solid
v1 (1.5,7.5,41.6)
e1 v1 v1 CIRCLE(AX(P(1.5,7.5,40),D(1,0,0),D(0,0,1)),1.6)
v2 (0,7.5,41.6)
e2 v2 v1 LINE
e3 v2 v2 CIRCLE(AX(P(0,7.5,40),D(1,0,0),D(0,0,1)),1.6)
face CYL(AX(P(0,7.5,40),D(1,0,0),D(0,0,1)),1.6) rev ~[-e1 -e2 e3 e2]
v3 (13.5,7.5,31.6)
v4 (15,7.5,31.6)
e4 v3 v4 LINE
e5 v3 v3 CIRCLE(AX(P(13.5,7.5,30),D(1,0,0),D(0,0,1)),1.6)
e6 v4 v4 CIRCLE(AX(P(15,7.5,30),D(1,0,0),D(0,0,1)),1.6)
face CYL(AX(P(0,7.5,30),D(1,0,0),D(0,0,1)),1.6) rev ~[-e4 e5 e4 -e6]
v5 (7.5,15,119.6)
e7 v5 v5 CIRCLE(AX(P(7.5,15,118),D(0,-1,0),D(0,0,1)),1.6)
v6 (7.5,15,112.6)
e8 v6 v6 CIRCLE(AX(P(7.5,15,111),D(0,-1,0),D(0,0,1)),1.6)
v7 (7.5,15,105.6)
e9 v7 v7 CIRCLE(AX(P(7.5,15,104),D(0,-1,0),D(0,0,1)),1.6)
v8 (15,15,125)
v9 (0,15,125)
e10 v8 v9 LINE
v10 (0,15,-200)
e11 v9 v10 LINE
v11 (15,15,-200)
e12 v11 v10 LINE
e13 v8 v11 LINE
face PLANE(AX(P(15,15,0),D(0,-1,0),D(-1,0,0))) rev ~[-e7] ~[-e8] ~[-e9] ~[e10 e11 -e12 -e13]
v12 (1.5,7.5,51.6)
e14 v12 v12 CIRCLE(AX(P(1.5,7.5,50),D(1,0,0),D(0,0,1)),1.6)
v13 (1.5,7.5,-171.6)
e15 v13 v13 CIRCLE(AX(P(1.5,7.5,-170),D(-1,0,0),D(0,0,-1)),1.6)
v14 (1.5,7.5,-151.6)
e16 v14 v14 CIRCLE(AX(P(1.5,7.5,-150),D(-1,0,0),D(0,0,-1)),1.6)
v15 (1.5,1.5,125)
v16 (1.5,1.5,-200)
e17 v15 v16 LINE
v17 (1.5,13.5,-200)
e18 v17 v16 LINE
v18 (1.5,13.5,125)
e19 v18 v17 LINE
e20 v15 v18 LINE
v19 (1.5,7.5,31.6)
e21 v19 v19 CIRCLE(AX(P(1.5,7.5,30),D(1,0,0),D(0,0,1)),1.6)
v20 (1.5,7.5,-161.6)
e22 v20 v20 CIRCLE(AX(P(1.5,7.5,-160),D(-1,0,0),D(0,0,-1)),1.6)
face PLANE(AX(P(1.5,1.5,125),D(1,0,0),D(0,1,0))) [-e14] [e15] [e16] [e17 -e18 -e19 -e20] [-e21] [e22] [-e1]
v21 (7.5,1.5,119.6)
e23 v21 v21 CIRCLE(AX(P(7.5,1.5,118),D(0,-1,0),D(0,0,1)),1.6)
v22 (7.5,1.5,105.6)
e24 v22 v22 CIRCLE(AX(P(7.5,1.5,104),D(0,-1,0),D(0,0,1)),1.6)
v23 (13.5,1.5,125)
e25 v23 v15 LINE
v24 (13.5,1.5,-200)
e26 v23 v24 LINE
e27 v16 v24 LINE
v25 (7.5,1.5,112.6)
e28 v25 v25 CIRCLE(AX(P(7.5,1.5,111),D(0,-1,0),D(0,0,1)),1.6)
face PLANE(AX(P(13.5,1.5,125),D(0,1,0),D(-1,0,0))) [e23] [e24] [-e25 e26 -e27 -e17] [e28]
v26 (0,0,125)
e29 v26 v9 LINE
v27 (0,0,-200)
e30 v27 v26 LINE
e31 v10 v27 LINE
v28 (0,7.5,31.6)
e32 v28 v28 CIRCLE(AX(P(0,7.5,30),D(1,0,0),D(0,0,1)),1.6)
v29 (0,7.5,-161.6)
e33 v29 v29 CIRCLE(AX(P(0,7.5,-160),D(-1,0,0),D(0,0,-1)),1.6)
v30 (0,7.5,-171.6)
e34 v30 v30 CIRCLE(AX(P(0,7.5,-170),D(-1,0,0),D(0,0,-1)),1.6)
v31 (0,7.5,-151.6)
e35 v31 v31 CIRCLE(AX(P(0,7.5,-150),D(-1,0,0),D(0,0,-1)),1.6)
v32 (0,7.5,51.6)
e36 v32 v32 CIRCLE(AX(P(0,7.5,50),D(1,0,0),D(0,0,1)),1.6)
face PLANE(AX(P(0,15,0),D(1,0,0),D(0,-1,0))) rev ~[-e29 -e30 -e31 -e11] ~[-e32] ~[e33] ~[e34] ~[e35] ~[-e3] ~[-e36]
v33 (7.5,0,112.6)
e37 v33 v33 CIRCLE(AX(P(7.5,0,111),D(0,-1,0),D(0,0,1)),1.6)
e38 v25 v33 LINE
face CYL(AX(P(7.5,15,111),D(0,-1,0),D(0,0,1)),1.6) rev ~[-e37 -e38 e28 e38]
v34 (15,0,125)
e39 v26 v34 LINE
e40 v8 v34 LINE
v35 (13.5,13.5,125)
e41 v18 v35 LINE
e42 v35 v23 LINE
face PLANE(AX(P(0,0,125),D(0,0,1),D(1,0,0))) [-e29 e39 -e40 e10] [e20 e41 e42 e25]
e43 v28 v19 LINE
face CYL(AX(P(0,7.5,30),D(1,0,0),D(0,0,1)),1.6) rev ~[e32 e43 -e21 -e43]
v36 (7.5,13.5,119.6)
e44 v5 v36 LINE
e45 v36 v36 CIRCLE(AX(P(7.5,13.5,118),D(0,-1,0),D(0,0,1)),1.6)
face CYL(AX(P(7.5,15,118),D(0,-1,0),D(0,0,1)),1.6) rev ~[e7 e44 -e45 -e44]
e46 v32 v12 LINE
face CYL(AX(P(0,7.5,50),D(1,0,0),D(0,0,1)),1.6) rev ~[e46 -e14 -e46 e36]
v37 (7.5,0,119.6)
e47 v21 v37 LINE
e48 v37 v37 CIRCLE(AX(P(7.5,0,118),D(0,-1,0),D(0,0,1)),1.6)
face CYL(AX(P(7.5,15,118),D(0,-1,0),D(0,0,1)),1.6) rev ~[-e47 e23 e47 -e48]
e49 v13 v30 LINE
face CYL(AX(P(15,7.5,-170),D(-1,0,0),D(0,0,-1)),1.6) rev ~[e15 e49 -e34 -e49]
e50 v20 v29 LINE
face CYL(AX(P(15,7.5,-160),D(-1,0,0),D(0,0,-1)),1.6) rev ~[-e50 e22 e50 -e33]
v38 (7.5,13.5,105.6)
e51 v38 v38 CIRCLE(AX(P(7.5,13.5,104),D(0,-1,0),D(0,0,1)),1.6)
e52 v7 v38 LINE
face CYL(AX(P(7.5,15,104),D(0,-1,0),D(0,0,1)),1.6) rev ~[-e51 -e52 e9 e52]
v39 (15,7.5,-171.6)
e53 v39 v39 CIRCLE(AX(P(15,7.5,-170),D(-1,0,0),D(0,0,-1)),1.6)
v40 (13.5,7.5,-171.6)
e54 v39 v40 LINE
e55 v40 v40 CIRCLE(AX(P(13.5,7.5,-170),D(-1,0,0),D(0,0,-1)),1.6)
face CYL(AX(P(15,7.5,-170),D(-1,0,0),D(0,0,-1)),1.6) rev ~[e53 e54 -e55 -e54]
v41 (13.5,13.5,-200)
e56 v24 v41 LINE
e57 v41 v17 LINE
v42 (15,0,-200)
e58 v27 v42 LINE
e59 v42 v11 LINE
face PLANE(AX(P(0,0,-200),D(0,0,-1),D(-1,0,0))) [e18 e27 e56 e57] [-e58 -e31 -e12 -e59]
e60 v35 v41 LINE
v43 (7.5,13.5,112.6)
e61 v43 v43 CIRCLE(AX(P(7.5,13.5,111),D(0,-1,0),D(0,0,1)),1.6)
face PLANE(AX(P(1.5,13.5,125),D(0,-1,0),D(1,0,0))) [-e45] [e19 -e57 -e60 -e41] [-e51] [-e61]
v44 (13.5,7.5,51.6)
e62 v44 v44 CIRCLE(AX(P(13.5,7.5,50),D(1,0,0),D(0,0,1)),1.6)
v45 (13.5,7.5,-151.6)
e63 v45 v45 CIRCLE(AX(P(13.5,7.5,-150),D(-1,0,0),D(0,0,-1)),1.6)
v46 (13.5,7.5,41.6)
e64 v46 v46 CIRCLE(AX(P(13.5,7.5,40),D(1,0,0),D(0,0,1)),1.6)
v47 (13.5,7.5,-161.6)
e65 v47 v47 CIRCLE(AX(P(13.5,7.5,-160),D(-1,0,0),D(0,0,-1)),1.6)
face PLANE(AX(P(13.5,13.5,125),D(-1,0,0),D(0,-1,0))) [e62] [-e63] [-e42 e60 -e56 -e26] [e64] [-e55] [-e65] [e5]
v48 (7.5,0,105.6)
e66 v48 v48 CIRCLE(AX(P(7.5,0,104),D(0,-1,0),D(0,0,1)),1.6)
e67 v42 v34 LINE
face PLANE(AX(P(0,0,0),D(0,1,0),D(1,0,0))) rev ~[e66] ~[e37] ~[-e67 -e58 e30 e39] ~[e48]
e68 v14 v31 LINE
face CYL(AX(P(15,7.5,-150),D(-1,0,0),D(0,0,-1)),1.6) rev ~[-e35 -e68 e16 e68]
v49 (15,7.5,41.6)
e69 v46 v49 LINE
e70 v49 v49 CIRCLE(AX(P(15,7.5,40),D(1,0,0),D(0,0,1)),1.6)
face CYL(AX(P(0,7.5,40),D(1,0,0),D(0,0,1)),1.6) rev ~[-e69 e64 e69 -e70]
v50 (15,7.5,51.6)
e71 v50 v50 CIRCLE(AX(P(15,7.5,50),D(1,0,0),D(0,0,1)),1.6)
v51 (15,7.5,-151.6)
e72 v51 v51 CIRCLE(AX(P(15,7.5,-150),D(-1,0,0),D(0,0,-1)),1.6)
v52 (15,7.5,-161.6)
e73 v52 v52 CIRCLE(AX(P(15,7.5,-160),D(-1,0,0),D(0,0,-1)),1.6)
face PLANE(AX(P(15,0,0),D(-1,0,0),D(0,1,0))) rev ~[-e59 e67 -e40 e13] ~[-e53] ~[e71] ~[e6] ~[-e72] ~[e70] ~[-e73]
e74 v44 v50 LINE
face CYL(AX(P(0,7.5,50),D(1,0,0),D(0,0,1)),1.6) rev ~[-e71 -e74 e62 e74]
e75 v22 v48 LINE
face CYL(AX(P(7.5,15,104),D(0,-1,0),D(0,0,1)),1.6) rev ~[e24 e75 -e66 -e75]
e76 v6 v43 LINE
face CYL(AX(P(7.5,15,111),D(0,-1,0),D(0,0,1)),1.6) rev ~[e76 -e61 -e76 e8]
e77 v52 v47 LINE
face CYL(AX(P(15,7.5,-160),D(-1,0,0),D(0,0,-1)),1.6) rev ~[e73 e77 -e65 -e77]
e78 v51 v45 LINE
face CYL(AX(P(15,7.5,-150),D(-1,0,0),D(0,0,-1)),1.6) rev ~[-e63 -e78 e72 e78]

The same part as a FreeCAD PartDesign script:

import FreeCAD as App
import Part
import Sketcher

doc = App.newDocument("Part")
body = doc.addObject("PartDesign::Body", "Body")

# Sketch on XY plane
sketch1 = body.newObject("Sketcher::SketchObject", "Sketch")
sketch1.AttachmentSupport = (doc.getObject("XY_Plane"), [""])
sketch1.MapMode = "FlatFace"
sketch1.addGeometry(Part.LineSegment(App.Vector(0, 15, 0), App.Vector(0, 0, 0)), False)
sketch1.addGeometry(Part.LineSegment(App.Vector(0, 0, 0), App.Vector(15, 0, 0)), False)
sketch1.addGeometry(Part.LineSegment(App.Vector(15, 0, 0), App.Vector(15, 15, 0)), False)
sketch1.addGeometry(Part.LineSegment(App.Vector(15, 15, 0), App.Vector(0, 15, 0)), False)
sketch1.addConstraint(Sketcher.Constraint("Coincident", 0, 2, 1, 1))
sketch1.addConstraint(Sketcher.Constraint("Coincident", 1, 2, 2, 1))
sketch1.addConstraint(Sketcher.Constraint("Coincident", 2, 2, 3, 1))
sketch1.addConstraint(Sketcher.Constraint("Coincident", 3, 2, 0, 1))
sketch1.addConstraint(Sketcher.Constraint("Vertical", 0))
sketch1.addConstraint(Sketcher.Constraint("Horizontal", 1))
sketch1.addConstraint(Sketcher.Constraint("Vertical", 2))
sketch1.addConstraint(Sketcher.Constraint("Horizontal", 3))
sketch1.addConstraint(Sketcher.Constraint("Coincident", 0, 2, -1, 1))
sketch1.addConstraint(Sketcher.Constraint("Equal", 3, 0))
sketch1.addConstraint(Sketcher.Constraint("DistanceX", 1, 1, 1, 2, 15.0))
pad1 = body.newObject("PartDesign::Pad", "Pad")
pad1.Profile = sketch1
pad1.Length = 140

# Sketch on XY plane
sketch2 = body.newObject("Sketcher::SketchObject", "Sketch001")
sketch2.AttachmentSupport = (doc.getObject("XY_Plane"), [""])
sketch2.MapMode = "FlatFace"
sketch2.addGeometry(Part.LineSegment(App.Vector(15, 0, 0), App.Vector(0, 0, 0)), False)
sketch2.addGeometry(Part.LineSegment(App.Vector(0, 0, 0), App.Vector(0, 15, 0)), False)
sketch2.addGeometry(Part.LineSegment(App.Vector(0, 15, 0), App.Vector(15, 15, 0)), False)
sketch2.addGeometry(Part.LineSegment(App.Vector(15, 15, 0), App.Vector(15, 0, 0)), False)
sketch2.addConstraint(Sketcher.Constraint("Coincident", 0, 2, 1, 1))
sketch2.addConstraint(Sketcher.Constraint("Coincident", 1, 2, 2, 1))
sketch2.addConstraint(Sketcher.Constraint("Coincident", 2, 2, 3, 1))
sketch2.addConstraint(Sketcher.Constraint("Coincident", 3, 2, 0, 1))
sketch2.addConstraint(Sketcher.Constraint("Horizontal", 0))
sketch2.addConstraint(Sketcher.Constraint("Vertical", 1))
sketch2.addConstraint(Sketcher.Constraint("Horizontal", 2))
sketch2.addConstraint(Sketcher.Constraint("Vertical", 3))
sketch2.addConstraint(Sketcher.Constraint("Coincident", 0, 2, -1, 1))
sketch2.addConstraint(Sketcher.Constraint("Equal", 2, 1))
sketch2.addConstraint(Sketcher.Constraint("DistanceX", 0, 2, 0, 1, 15.0))
pad2 = body.newObject("PartDesign::Pad", "Pad001")
pad2.Profile = sketch2
pad2.Length = 200
pad2.Reversed = True

# Sketch on XY plane
sketch3 = body.newObject("Sketcher::SketchObject", "Sketch002")
sketch3.AttachmentSupport = (doc.getObject("XY_Plane"), [""])
sketch3.MapMode = "FlatFace"
sketch3.AttachmentOffset = App.Placement(App.Vector(0, 0, 140), App.Rotation())
sketch3.addGeometry(Part.LineSegment(App.Vector(0, 15, 0), App.Vector(0, 0, 0)), False)
sketch3.addGeometry(Part.LineSegment(App.Vector(0, 0, 0), App.Vector(15, 0, 0)), False)
sketch3.addGeometry(Part.LineSegment(App.Vector(15, 0, 0), App.Vector(15, 15, 0)), False)
sketch3.addGeometry(Part.LineSegment(App.Vector(15, 15, 0), App.Vector(0, 15, 0)), False)
sketch3.addConstraint(Sketcher.Constraint("Coincident", 0, 2, 1, 1))
sketch3.addConstraint(Sketcher.Constraint("Coincident", 1, 2, 2, 1))
sketch3.addConstraint(Sketcher.Constraint("Coincident", 2, 2, 3, 1))
sketch3.addConstraint(Sketcher.Constraint("Coincident", 3, 2, 0, 1))
sketch3.addConstraint(Sketcher.Constraint("Vertical", 0))
sketch3.addConstraint(Sketcher.Constraint("Horizontal", 1))
sketch3.addConstraint(Sketcher.Constraint("Vertical", 2))
sketch3.addConstraint(Sketcher.Constraint("Horizontal", 3))
sketch3.addConstraint(Sketcher.Constraint("Coincident", 0, 2, -1, 1))
sketch3.addConstraint(Sketcher.Constraint("Equal", 3, 0))
sketch3.addConstraint(Sketcher.Constraint("DistanceX", 1, 1, 1, 2, 15.0))
pocket1 = body.newObject("PartDesign::Pocket", "Pocket")
pocket1.Profile = sketch3
pocket1.Length = 15

# Sketch on YZ plane
sketch4 = body.newObject("Sketcher::SketchObject", "Sketch003")
sketch4.AttachmentSupport = (doc.getObject("YZ_Plane"), [""])
sketch4.MapMode = "FlatFace"
sketch4.addGeometry(Part.Circle(App.Vector(7.5, 40, 0), App.Vector(0, 0, 1), 1.6), False)
sketch4.addConstraint(Sketcher.Constraint("Diameter", 0, 3.2))
sketch4.addConstraint(Sketcher.Constraint("DistanceY", -1, 1, 0, 3, 40.0))
sketch4.addConstraint(Sketcher.Constraint("DistanceX", -1, 1, 0, 3, 7.5))
doc.recompute()
hole = body.newObject("PartDesign::Hole", "Hole")
hole.Profile = sketch4
hole.ThreadType = "None"
hole.Diameter = 3.2
hole.DepthType = "ThroughAll"
hole.Reversed = True

# Sketch on YZ plane
sketch5 = body.newObject("Sketcher::SketchObject", "Sketch004")
sketch5.AttachmentSupport = (doc.getObject("YZ_Plane"), [""])
sketch5.MapMode = "FlatFace"
sketch5.addGeometry(Part.Circle(App.Vector(7.5, 30, 0), App.Vector(0, 0, 1), 1.6), False)
sketch5.addGeometry(Part.Circle(App.Vector(7.5, 50, 0), App.Vector(0, 0, 1), 1.6), False)
sketch5.addConstraint(Sketcher.Constraint("Equal", 0, 1))
sketch5.addConstraint(Sketcher.Constraint("Vertical", 0, 3, 1, 3))
sketch5.addConstraint(Sketcher.Constraint("Diameter", 0, 3.2))
sketch5.addConstraint(Sketcher.Constraint("DistanceY", -1, 1, 0, 3, 30.0))
sketch5.addConstraint(Sketcher.Constraint("DistanceY", -1, 1, 1, 3, 50.0))
sketch5.addConstraint(Sketcher.Constraint("DistanceX", -1, 1, 0, 3, 7.5))
doc.recompute()
hole2 = body.newObject("PartDesign::Hole", "Hole001")
hole2.Profile = sketch5
hole2.ThreadType = "None"
hole2.Diameter = 3.2
hole2.DepthType = "ThroughAll"
hole2.Reversed = True

# Sketch on XZ plane
sketch6 = body.newObject("Sketcher::SketchObject", "Sketch005")
sketch6.AttachmentSupport = (doc.getObject("XZ_Plane"), [""])
sketch6.MapMode = "FlatFace"
sketch6.AttachmentOffset = App.Placement(App.Vector(0, 0, -15), App.Rotation())
sketch6.addGeometry(Part.Circle(App.Vector(7.5, 104, 0), App.Vector(0, 0, 1), 1.6), False)
sketch6.addGeometry(Part.Circle(App.Vector(7.5, 111, 0), App.Vector(0, 0, 1), 1.6), False)
sketch6.addGeometry(Part.Circle(App.Vector(7.5, 118, 0), App.Vector(0, 0, 1), 1.6), False)
sketch6.addConstraint(Sketcher.Constraint("Equal", 0, 1))
sketch6.addConstraint(Sketcher.Constraint("Equal", 1, 2))
sketch6.addConstraint(Sketcher.Constraint("Vertical", 0, 3, 1, 3))
sketch6.addConstraint(Sketcher.Constraint("Vertical", 1, 3, 2, 3))
sketch6.addConstraint(Sketcher.Constraint("Diameter", 0, 3.2))
sketch6.addConstraint(Sketcher.Constraint("DistanceY", -1, 1, 0, 3, 104.0))
sketch6.addConstraint(Sketcher.Constraint("DistanceY", -1, 1, 1, 3, 111.0))
sketch6.addConstraint(Sketcher.Constraint("DistanceY", -1, 1, 2, 3, 118.0))
sketch6.addConstraint(Sketcher.Constraint("DistanceX", -1, 1, 0, 3, 7.5))
doc.recompute()
hole3 = body.newObject("PartDesign::Hole", "Hole002")
hole3.Profile = sketch6
hole3.ThreadType = "None"
hole3.Diameter = 3.2
hole3.DepthType = "ThroughAll"
hole3.Reversed = True

# Sketch on YZ plane
sketch7 = body.newObject("Sketcher::SketchObject", "Sketch006")
sketch7.AttachmentSupport = (doc.getObject("YZ_Plane"), [""])
sketch7.MapMode = "FlatFace"
sketch7.AttachmentOffset = App.Placement(App.Vector(0, 0, 15), App.Rotation())
sketch7.addGeometry(Part.Circle(App.Vector(7.5, -150, 0), App.Vector(0, 0, 1), 1.6), False)
sketch7.addGeometry(Part.Circle(App.Vector(7.5, -160, 0), App.Vector(0, 0, 1), 1.6), False)
sketch7.addGeometry(Part.Circle(App.Vector(7.5, -170, 0), App.Vector(0, 0, 1), 1.6), False)
sketch7.addConstraint(Sketcher.Constraint("Equal", 0, 1))
sketch7.addConstraint(Sketcher.Constraint("Equal", 1, 2))
sketch7.addConstraint(Sketcher.Constraint("Vertical", 0, 3, 1, 3))
sketch7.addConstraint(Sketcher.Constraint("Vertical", 1, 3, 2, 3))
sketch7.addConstraint(Sketcher.Constraint("Diameter", 0, 3.2))
sketch7.addConstraint(Sketcher.Constraint("DistanceY", 0, 3, -1, 1, 150.0))
sketch7.addConstraint(Sketcher.Constraint("DistanceY", 1, 3, -1, 1, 160.0))
sketch7.addConstraint(Sketcher.Constraint("DistanceY", 2, 3, -1, 1, 170.0))
sketch7.addConstraint(Sketcher.Constraint("DistanceX", -1, 1, 0, 3, 7.5))
doc.recompute()
hole4 = body.newObject("PartDesign::Hole", "Hole003")
hole4.Profile = sketch7
hole4.ThreadType = "None"
hole4.Diameter = 3.2
hole4.DepthType = "ThroughAll"

# Sketch on XY plane
sketch8 = body.newObject("Sketcher::SketchObject", "Sketch007")
sketch8.AttachmentSupport = (doc.getObject("XY_Plane"), [""])
sketch8.MapMode = "FlatFace"
sketch8.AttachmentOffset = App.Placement(App.Vector(0, 0, 125), App.Rotation())
sketch8.addGeometry(Part.LineSegment(App.Vector(14, 14, 0), App.Vector(2, 14, 0)), False)
sketch8.addGeometry(Part.LineSegment(App.Vector(2, 14, 0), App.Vector(2, 2, 0)), False)
sketch8.addGeometry(Part.LineSegment(App.Vector(2, 2, 0), App.Vector(14, 2, 0)), False)
sketch8.addGeometry(Part.LineSegment(App.Vector(14, 2, 0), App.Vector(14, 14, 0)), False)
sketch8.addConstraint(Sketcher.Constraint("Coincident", 0, 2, 1, 1))
sketch8.addConstraint(Sketcher.Constraint("Coincident", 1, 2, 2, 1))
sketch8.addConstraint(Sketcher.Constraint("Coincident", 2, 2, 3, 1))
sketch8.addConstraint(Sketcher.Constraint("Coincident", 3, 2, 0, 1))
sketch8.addConstraint(Sketcher.Constraint("Horizontal", 0))
sketch8.addConstraint(Sketcher.Constraint("Vertical", 1))
sketch8.addConstraint(Sketcher.Constraint("Horizontal", 2))
sketch8.addConstraint(Sketcher.Constraint("Vertical", 3))
sketch8.addConstraint(Sketcher.Constraint("Equal", 2, 1))
sketch8.addConstraint(Sketcher.Constraint("DistanceX", 0, 2, 0, 1, 12.0))
sketch8.addConstraint(Sketcher.Constraint("DistanceX", -1, 1, 0, 2, 1.5))
sketch8.addConstraint(Sketcher.Constraint("DistanceY", -1, 1, 1, 2, 1.5))
pocket2 = body.newObject("PartDesign::Pocket", "Pocket001")
pocket2.Profile = sketch8
pocket2.Length = 450

doc.recompute()
